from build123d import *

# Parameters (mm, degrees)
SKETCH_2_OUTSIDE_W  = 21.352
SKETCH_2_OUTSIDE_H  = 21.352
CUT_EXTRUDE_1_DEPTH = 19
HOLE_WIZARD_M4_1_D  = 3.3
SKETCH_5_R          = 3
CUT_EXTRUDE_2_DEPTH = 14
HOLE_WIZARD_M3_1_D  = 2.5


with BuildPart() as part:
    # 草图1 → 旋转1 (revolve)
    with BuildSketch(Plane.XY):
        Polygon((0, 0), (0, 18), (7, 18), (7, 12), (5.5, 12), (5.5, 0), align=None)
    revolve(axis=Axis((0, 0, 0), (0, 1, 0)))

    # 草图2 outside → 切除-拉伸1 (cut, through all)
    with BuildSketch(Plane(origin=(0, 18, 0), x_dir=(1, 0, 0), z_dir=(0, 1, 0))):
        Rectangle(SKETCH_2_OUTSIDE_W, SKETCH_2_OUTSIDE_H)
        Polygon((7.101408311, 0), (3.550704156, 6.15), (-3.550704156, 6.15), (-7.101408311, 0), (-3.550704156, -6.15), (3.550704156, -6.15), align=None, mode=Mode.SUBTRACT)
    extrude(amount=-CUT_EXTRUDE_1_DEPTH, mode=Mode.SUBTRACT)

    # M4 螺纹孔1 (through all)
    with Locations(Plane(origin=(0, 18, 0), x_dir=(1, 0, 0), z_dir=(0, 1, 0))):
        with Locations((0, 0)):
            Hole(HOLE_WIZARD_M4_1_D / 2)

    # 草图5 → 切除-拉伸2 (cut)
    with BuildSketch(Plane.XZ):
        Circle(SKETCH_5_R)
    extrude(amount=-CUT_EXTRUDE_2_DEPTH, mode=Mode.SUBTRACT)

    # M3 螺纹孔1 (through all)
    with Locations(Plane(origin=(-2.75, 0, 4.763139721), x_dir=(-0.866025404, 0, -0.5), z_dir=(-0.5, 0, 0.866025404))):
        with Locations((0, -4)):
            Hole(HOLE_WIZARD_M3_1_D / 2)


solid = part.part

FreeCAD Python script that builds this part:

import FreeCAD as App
import Part
import Sketcher
from FreeCAD import Vector
Q = App.Units.Quantity

doc = App.newDocument("Part")
params = doc.addObject("Spreadsheet::Sheet", "Params")
for row, (alias, value) in enumerate([
    ("sketch1_width", "7 mm"),
    ("sketch1_height", "18 mm"),
    ("sketch1_height2", "12 mm"),
    ("sketch1_width2", "5.5 mm"),
    ("revolution_angle", "360 deg"),
    ("sketch3_diameter", "3.3 mm"),
    ("hole_diameter", "3.3 mm"),
    ("sketch4_diameter", "6 mm"),
    ("pocket2_length", "14 mm"),
    ("sketch5_diameter", "2.5 mm"),
    ("hole2_diameter", "2.5 mm"),
], start=1):
    params.set(f"A{row}", alias)
    params.set(f"B{row}", "=" + value)
    params.setAlias(f"B{row}", alias)

body = doc.addObject("PartDesign::Body", "Body")

sketch1 = doc.addObject("Sketcher::SketchObject", "Sketch")
body.addObject(sketch1)
sketch1.AttachmentSupport = (doc.XY_Plane, [""])
sketch1.MapMode = "FlatFace"
sketch1.addGeometry([
    Part.LineSegment(Vector(0, 18, 0), Vector(0, 0, 0)),
    Part.LineSegment(Vector(0, 0, 0), Vector(5.5, 0, 0)),
    Part.LineSegment(Vector(5.5, 0, 0), Vector(5.5, 12, 0)),
    Part.LineSegment(Vector(5.5, 12, 0), Vector(7, 12, 0)),
    Part.LineSegment(Vector(7, 12, 0), Vector(7, 18, 0)),
    Part.LineSegment(Vector(7, 18, 0), Vector(0, 18, 0)),
], False)
sketch1.addConstraint([
    Sketcher.Constraint("Coincident", 0, 2, 1, 1),
    Sketcher.Constraint("Coincident", 1, 2, 2, 1),
    Sketcher.Constraint("Coincident", 2, 2, 3, 1),
    Sketcher.Constraint("Coincident", 3, 2, 4, 1),
    Sketcher.Constraint("Coincident", 4, 2, 5, 1),
    Sketcher.Constraint("Coincident", 5, 2, 0, 1),
    Sketcher.Constraint("Vertical", 0),
    Sketcher.Constraint("Horizontal", 1),
    Sketcher.Constraint("Vertical", 2),
    Sketcher.Constraint("Horizontal", 3),
    Sketcher.Constraint("Vertical", 4),
    Sketcher.Constraint("Horizontal", 5),
    Sketcher.Constraint("Coincident", 0, 2, -1, 1),
    Sketcher.Constraint("DistanceX", 5, 2, 5, 1, Q("7 mm")),
    Sketcher.Constraint("DistanceY", 0, 2, 0, 1, Q("18 mm")),
    Sketcher.Constraint("DistanceY", 2, 1, 2, 2, Q("12 mm")),
    Sketcher.Constraint("DistanceX", 1, 1, 1, 2, Q("5.5 mm")),
])
sketch1.setExpression("Constraints[13]", "Params.sketch1_width")
sketch1.setExpression("Constraints[14]", "Params.sketch1_height")
sketch1.setExpression("Constraints[15]", "Params.sketch1_height2")
sketch1.setExpression("Constraints[16]", "Params.sketch1_width2")
revolution = doc.addObject("PartDesign::Revolution", "Revolution")
body.addObject(revolution)
revolution.Profile = sketch1
revolution.ReferenceAxis = (sketch1, ["V_Axis"])
revolution.setExpression("Angle", "Params.revolution_angle")

sketch2 = doc.addObject("Sketcher::SketchObject", "Sketch001")
body.addObject(sketch2)
sketch2.AttachmentSupport = (doc.XZ_Plane, [""])
sketch2.MapMode = "FlatFace"
sketch2.AttachmentOffset = App.Placement(Vector(0, 0, -18), App.Rotation())
sketch2.addGeometry([
    Part.LineSegment(Vector(-11, -11, 0), Vector(-11, 11, 0)),
    Part.LineSegment(Vector(-11, 11, 0), Vector(11, 11, 0)),
    Part.LineSegment(Vector(11, 11, 0), Vector(11, -11, 0)),
    Part.LineSegment(Vector(11, -11, 0), Vector(-11, -11, 0)),
    Part.LineSegment(Vector(4, -6, 0), Vector(7, 0, 0)),
    Part.LineSegment(Vector(7, 0, 0), Vector(4, 6, 0)),
    Part.LineSegment(Vector(4, 6, 0), Vector(-4, 6, 0)),
    Part.LineSegment(Vector(-4, 6, 0), Vector(-7, 0, 0)),
    Part.LineSegment(Vector(-7, 0, 0), Vector(-4, -6, 0)),
    Part.LineSegment(Vector(-4, -6, 0), Vector(4, -6, 0)),
], False)
sketch2.addConstraint([
    Sketcher.Constraint("Coincident", 0, 2, 1, 1),
    Sketcher.Constraint("Coincident", 1, 2, 2, 1),
    Sketcher.Constraint("Coincident", 2, 2, 3, 1),
    Sketcher.Constraint("Coincident", 3, 2, 0, 1),
    Sketcher.Constraint("Coincident", 4, 2, 5, 1),
    Sketcher.Constraint("Coincident", 5, 2, 6, 1),
    Sketcher.Constraint("Coincident", 6, 2, 7, 1),
    Sketcher.Constraint("Coincident", 7, 2, 8, 1),
    Sketcher.Constraint("Coincident", 8, 2, 9, 1),
    Sketcher.Constraint("Coincident", 9, 2, 4, 1),
    Sketcher.Constraint("Vertical", 0),
    Sketcher.Constraint("Horizontal", 1),
    Sketcher.Constraint("Vertical", 2),
    Sketcher.Constraint("Horizontal", 3),
    Sketcher.Constraint("Horizontal", 6),
    Sketcher.Constraint("Horizontal", 9),
    Sketcher.Constraint("Symmetric", 0, 2, 2, 2, -1, 1),
    Sketcher.Constraint("Symmetric", 4, 2, 7, 2, -1, 1),
    Sketcher.Constraint("Symmetric", 5, 2, 8, 2, -1, 1),
    Sketcher.Constraint("PointOnObject", 4, 2, -1),
    Sketcher.Constraint("Parallel", 4, 7),
    Sketcher.Constraint("Vertical", 6, 2, 8, 2),
    Sketcher.Constraint("Equal", 3, 0),
    Sketcher.Constraint("Angle", 4, Q("60 deg")),
    Sketcher.Constraint("DistanceY", 8, 2, 6, 2, Q("12.3 mm")),
    Sketcher.Constraint("DistanceX", 1, 1, 1, 2, Q("21.352 mm")),
    Sketcher.Constraint("DistanceX", 6, 2, 6, 1, Q("7.101408 mm")),
])
pocket1 = doc.addObject("PartDesign::Pocket", "Pocket")
body.addObject(pocket1)
pocket1.Profile = sketch2
pocket1.Type = "ThroughAll"
pocket1.Reversed = True

sketch3 = doc.addObject("Sketcher::SketchObject", "Sketch002")
body.addObject(sketch3)
sketch3.AttachmentSupport = (doc.XZ_Plane, [""])
sketch3.MapMode = "FlatFace"
sketch3.AttachmentOffset = App.Placement(Vector(0, 0, -18), App.Rotation())
sketch3.addGeometry(Part.Circle(Vector(0, 0, 0), Vector(0, 0, 1), 1.6), False)
sketch3.addConstraint([
    Sketcher.Constraint("Coincident", 0, 3, -1, 1),
    Sketcher.Constraint("Diameter", 0, Q("3.3 mm")),
])
sketch3.setExpression("Constraints[1]", "Params.sketch3_diameter")
doc.recompute()
hole = doc.addObject("PartDesign::Hole", "Hole")
body.addObject(hole)
hole.Profile = sketch3
hole.ThreadType = "None"
hole.setExpression("Diameter", "Params.hole_diameter")
hole.DepthType = "ThroughAll"
hole.Reversed = True

sketch4 = doc.addObject("Sketcher::SketchObject", "Sketch003")
body.addObject(sketch4)
sketch4.AttachmentSupport = (doc.XZ_Plane, [""])
sketch4.MapMode = "FlatFace"
sketch4.addGeometry(Part.Circle(Vector(0, 0, 0), Vector(0, 0, 1), 3), False)
sketch4.addConstraint([
    Sketcher.Constraint("Coincident", 0, 3, -1, 1),
    Sketcher.Constraint("Diameter", 0, Q("6 mm")),
])
sketch4.setExpression("Constraints[1]", "Params.sketch4_diameter")
pocket2 = doc.addObject("PartDesign::Pocket", "Pocket001")
body.addObject(pocket2)
pocket2.Profile = sketch4
pocket2.setExpression("Length", "Params.pocket2_length")

sketch5 = doc.addObject("Sketcher::SketchObject", "Sketch004")
body.addObject(sketch5)
sketch5.Placement = App.Placement(Vector(-2.75, 0, 4.76314), App.Rotation(Vector(-0.866025404, 0, -0.5), Vector(0, -1, 0), Vector(-0.5, 0, 0.866025404), "ZXY"))
sketch5.addGeometry(Part.Circle(Vector(0, -4, 0), Vector(0, 0, 1), 1.2), False)
sketch5.addConstraint([
    Sketcher.Constraint("PointOnObject", 0, 3, -2),
    Sketcher.Constraint("Diameter", 0, Q("2.5 mm")),
    Sketcher.Constraint("DistanceY", 0, 3, -1, 1, Q("4 mm")),
])
sketch5.setExpression("Constraints[1]", "Params.sketch5_diameter")
doc.recompute()
hole2 = doc.addObject("PartDesign::Hole", "Hole001")
body.addObject(hole2)
hole2.Profile = sketch5
hole2.ThreadType = "None"
hole2.setExpression("Diameter", "Params.hole2_diameter")
hole2.DepthType = "ThroughAll"

doc.recompute()
